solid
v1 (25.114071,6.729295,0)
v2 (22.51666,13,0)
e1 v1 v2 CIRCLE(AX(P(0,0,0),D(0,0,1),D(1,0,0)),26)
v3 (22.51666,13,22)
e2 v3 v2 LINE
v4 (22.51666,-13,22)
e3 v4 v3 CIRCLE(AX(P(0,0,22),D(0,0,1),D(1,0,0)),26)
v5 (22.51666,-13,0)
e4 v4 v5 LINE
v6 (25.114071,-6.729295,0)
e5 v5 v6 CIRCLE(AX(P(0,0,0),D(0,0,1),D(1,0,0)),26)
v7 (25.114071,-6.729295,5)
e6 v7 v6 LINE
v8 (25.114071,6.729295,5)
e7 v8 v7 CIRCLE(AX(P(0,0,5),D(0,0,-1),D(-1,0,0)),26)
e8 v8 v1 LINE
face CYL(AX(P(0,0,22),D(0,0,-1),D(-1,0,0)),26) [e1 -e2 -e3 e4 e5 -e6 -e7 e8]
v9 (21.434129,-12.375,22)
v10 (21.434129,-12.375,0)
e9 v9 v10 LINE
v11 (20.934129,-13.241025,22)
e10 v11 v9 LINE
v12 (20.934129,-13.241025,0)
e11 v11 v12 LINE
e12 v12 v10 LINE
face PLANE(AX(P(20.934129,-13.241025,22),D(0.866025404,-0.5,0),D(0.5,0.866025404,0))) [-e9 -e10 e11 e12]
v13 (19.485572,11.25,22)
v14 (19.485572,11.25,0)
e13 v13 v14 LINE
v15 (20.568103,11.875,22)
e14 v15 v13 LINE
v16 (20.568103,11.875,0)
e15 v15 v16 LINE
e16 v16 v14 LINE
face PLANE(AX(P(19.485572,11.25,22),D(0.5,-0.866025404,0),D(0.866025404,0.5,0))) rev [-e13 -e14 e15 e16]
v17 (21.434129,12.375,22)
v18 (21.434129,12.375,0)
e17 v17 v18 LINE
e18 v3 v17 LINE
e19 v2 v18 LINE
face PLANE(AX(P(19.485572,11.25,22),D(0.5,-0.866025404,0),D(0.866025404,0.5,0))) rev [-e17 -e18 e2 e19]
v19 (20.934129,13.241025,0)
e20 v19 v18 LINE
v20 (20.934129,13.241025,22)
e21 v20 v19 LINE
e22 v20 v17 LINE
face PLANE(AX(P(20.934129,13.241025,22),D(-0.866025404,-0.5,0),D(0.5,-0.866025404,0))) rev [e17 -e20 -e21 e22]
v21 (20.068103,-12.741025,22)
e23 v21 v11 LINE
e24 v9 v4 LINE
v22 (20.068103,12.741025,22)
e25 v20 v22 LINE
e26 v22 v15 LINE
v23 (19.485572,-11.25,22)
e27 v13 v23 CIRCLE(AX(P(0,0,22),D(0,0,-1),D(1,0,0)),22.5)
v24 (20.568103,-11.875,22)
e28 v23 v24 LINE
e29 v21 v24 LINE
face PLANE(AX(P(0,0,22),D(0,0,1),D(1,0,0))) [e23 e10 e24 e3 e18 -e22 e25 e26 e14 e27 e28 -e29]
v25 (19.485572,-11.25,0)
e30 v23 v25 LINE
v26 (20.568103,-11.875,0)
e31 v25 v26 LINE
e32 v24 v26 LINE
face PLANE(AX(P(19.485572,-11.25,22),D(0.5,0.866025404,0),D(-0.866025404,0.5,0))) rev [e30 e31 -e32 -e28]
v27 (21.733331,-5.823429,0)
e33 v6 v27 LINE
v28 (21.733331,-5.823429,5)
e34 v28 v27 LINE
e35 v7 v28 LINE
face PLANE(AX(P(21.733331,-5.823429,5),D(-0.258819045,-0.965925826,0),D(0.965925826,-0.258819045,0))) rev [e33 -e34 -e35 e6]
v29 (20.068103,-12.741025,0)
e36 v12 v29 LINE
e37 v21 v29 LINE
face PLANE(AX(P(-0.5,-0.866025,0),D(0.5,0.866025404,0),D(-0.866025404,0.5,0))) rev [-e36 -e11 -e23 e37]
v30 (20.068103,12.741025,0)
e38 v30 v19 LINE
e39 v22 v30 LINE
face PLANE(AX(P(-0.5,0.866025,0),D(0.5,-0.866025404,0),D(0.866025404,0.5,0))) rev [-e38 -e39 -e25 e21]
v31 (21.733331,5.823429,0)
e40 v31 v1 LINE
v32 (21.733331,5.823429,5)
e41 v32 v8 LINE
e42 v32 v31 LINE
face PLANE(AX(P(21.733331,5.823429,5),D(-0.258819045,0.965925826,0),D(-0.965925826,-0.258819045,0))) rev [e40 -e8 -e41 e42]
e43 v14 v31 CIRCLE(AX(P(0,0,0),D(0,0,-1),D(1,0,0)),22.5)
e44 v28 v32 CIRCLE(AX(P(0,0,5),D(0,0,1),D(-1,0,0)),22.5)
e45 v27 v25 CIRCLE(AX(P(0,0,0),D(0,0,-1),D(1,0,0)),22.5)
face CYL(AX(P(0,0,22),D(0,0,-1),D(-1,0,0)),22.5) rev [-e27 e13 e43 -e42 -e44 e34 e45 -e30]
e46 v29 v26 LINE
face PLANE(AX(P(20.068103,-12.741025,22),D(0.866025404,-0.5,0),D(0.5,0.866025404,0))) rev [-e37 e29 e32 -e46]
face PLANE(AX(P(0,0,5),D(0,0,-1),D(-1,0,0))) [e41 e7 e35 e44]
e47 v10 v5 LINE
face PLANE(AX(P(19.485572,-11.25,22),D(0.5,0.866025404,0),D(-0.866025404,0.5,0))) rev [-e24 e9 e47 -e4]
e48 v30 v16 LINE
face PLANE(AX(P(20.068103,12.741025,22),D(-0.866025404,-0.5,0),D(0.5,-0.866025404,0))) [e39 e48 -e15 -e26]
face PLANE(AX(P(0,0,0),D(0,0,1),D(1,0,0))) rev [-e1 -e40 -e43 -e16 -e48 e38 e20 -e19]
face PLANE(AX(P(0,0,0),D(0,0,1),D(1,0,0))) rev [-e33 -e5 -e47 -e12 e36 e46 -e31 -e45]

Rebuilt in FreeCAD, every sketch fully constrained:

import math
import FreeCAD as App
import Part
import Sketcher
from FreeCAD import Vector
Q = App.Units.Quantity

doc = App.newDocument("Part")
body = doc.addObject("PartDesign::Body", "Body")

# Sketch on XY plane
sketch1 = body.newObject("Sketcher::SketchObject", "Sketch")
sketch1.AttachmentSupport = (doc.getObject("XY_Plane"), [""])
sketch1.MapMode = "FlatFace"
sketch1.addGeometry([
    Part.LineSegment(Vector(22.5, 13, 0), Vector(19.5, 11.2, 0)),
    Part.ArcOfCircle(Part.Circle(Vector(0, 0, 0), Vector(0, 0, 1), 22.5), math.radians(-30), math.radians(30)),
    Part.LineSegment(Vector(19.5, -11.2, 0), Vector(22.5, -13, 0)),
    Part.ArcOfCircle(Part.Circle(Vector(0, 0, 0), Vector(0, 0, 1), 26), math.radians(-30), math.radians(30)),
], False)
sketch1.addConstraint([
    Sketcher.Constraint("Coincident", 0, 2, 1, 2),
    Sketcher.Constraint("Coincident", 1, 1, 2, 1),
    Sketcher.Constraint("Coincident", 2, 2, 3, 1),
    Sketcher.Constraint("Coincident", 3, 2, 0, 1),
    Sketcher.Constraint("Coincident", 1, 3, -1, 1),
    Sketcher.Constraint("Coincident", 3, 3, -1, 1),
    Sketcher.Constraint("Vertical", 0, 2, 1, 1),
    Sketcher.Constraint("Vertical", 2, 2, 3, 2),
    Sketcher.Constraint("Radius", 3, Q("26 mm")),
    Sketcher.Constraint("Radius", 1, Q("22.5 mm")),
    Sketcher.Constraint("Angle", 0, Q("-150 deg")),
    Sketcher.Constraint("DistanceY", 2, 2, -1, 1, Q("13 mm")),
])
pad1 = body.newObject("PartDesign::Pad", "Pad")
pad1.Profile = sketch1
pad1.Length = 22

# Sketch on an angled plane
sketch2 = body.newObject("Sketcher::SketchObject", "Sketch001")
sketch2.Placement = App.Placement(Vector(0, 0, 0), App.Rotation(Vector(-0.866025404, -0.5, 0), Vector(0, 0, 1), Vector(-0.5, 0.866025404, 0), "ZXY"))
sketch2.addGeometry([
    Part.LineSegment(Vector(-24.8, 22, 0), Vector(-24.8, 0, 0)),
    Part.LineSegment(Vector(-24.8, 0, 0), Vector(-23.8, 0, 0)),
    Part.LineSegment(Vector(-23.8, 0, 0), Vector(-23.8, 22, 0)),
    Part.LineSegment(Vector(-23.8, 22, 0), Vector(-24.8, 22, 0)),
], False)
sketch2.addConstraint([
    Sketcher.Constraint("Coincident", 0, 2, 1, 1),
    Sketcher.Constraint("Coincident", 1, 2, 2, 1),
    Sketcher.Constraint("Coincident", 2, 2, 3, 1),
    Sketcher.Constraint("Coincident", 3, 2, 0, 1),
    Sketcher.Constraint("Vertical", 0),
    Sketcher.Constraint("Horizontal", 1),
    Sketcher.Constraint("Vertical", 2),
    Sketcher.Constraint("Horizontal", 3),
    Sketcher.Constraint("PointOnObject", 0, 2, -1),
    Sketcher.Constraint("DistanceX", 1, 1, 1, 2, Q("1 mm")),
    Sketcher.Constraint("DistanceY", 0, 2, 0, 1, Q("22 mm")),
    Sketcher.Constraint("DistanceX", 0, 2, -1, 1, Q("24.75 mm")),
])
pad2 = body.newObject("PartDesign::Pad", "Pad001")
pad2.Profile = sketch2
pad2.Length = 1

# Sketch on an angled plane
sketch3 = body.newObject("Sketcher::SketchObject", "Sketch002")
sketch3.Placement = App.Placement(Vector(0, 0, 0), App.Rotation(Vector(0.866025404, -0.5, 0), Vector(0, 0, 1), Vector(-0.5, -0.866025404, 0), "ZXY"))
sketch3.addGeometry([
    Part.LineSegment(Vector(23.8, 22, 0), Vector(23.8, 0, 0)),
    Part.LineSegment(Vector(23.8, 0, 0), Vector(24.8, 0, 0)),
    Part.LineSegment(Vector(24.8, 0, 0), Vector(24.8, 22, 0)),
    Part.LineSegment(Vector(24.8, 22, 0), Vector(23.8, 22, 0)),
], False)
sketch3.addConstraint([
    Sketcher.Constraint("Coincident", 0, 2, 1, 1),
    Sketcher.Constraint("Coincident", 1, 2, 2, 1),
    Sketcher.Constraint("Coincident", 2, 2, 3, 1),
    Sketcher.Constraint("Coincident", 3, 2, 0, 1),
    Sketcher.Constraint("Vertical", 0),
    Sketcher.Constraint("Horizontal", 1),
    Sketcher.Constraint("Vertical", 2),
    Sketcher.Constraint("Horizontal", 3),
    Sketcher.Constraint("PointOnObject", 0, 2, -1),
    Sketcher.Constraint("DistanceX", 1, 1, 1, 2, Q("1 mm")),
    Sketcher.Constraint("DistanceY", 0, 2, 0, 1, Q("22 mm")),
    Sketcher.Constraint("DistanceX", -1, 1, 0, 2, Q("23.75 mm")),
])
pad3 = body.newObject("PartDesign::Pad", "Pad002")
pad3.Profile = sketch3
pad3.Length = 1

# Sketch on XY plane
sketch4 = body.newObject("Sketcher::SketchObject", "Sketch003")
sketch4.AttachmentSupport = (doc.getObject("XY_Plane"), [""])
sketch4.MapMode = "FlatFace"
sketch4.addGeometry([
    Part.LineSegment(Vector(21.7, 5.8, 0), Vector(25.1, 6.7, 0)),
    Part.ArcOfCircle(Part.Circle(Vector(0, 0, 0), Vector(0, 0, 1), 26), math.radians(-15), math.radians(15)),
    Part.LineSegment(Vector(25.1, -6.7, 0), Vector(21.7, -5.8, 0)),
    Part.ArcOfCircle(Part.Circle(Vector(0, 0, 0), Vector(0, 0, 1), 22.5), math.radians(-15), math.radians(15)),
], False)
sketch4.addConstraint([
    Sketcher.Constraint("Coincident", 0, 2, 1, 2),
    Sketcher.Constraint("Coincident", 1, 1, 2, 1),
    Sketcher.Constraint("Coincident", 2, 2, 3, 1),
    Sketcher.Constraint("Coincident", 3, 2, 0, 1),
    Sketcher.Constraint("Coincident", 1, 3, -1, 1),
    Sketcher.Constraint("Coincident", 3, 3, -1, 1),
    Sketcher.Constraint("Vertical", 0, 2, 1, 1),
    Sketcher.Constraint("Vertical", 2, 2, 3, 2),
    Sketcher.Constraint("Radius", 1, Q("26 mm")),
    Sketcher.Constraint("Radius", 3, Q("22.5 mm")),
    Sketcher.Constraint("Angle", 0, Q("15 deg")),
    Sketcher.Constraint("DistanceX", -1, 1, 0, 2, Q("25.114071 mm")),
])
pocket1 = body.newObject("PartDesign::Pocket", "Pocket")
pocket1.Profile = sketch4
pocket1.Length = 5
pocket1.Reversed = True

doc.recompute()
